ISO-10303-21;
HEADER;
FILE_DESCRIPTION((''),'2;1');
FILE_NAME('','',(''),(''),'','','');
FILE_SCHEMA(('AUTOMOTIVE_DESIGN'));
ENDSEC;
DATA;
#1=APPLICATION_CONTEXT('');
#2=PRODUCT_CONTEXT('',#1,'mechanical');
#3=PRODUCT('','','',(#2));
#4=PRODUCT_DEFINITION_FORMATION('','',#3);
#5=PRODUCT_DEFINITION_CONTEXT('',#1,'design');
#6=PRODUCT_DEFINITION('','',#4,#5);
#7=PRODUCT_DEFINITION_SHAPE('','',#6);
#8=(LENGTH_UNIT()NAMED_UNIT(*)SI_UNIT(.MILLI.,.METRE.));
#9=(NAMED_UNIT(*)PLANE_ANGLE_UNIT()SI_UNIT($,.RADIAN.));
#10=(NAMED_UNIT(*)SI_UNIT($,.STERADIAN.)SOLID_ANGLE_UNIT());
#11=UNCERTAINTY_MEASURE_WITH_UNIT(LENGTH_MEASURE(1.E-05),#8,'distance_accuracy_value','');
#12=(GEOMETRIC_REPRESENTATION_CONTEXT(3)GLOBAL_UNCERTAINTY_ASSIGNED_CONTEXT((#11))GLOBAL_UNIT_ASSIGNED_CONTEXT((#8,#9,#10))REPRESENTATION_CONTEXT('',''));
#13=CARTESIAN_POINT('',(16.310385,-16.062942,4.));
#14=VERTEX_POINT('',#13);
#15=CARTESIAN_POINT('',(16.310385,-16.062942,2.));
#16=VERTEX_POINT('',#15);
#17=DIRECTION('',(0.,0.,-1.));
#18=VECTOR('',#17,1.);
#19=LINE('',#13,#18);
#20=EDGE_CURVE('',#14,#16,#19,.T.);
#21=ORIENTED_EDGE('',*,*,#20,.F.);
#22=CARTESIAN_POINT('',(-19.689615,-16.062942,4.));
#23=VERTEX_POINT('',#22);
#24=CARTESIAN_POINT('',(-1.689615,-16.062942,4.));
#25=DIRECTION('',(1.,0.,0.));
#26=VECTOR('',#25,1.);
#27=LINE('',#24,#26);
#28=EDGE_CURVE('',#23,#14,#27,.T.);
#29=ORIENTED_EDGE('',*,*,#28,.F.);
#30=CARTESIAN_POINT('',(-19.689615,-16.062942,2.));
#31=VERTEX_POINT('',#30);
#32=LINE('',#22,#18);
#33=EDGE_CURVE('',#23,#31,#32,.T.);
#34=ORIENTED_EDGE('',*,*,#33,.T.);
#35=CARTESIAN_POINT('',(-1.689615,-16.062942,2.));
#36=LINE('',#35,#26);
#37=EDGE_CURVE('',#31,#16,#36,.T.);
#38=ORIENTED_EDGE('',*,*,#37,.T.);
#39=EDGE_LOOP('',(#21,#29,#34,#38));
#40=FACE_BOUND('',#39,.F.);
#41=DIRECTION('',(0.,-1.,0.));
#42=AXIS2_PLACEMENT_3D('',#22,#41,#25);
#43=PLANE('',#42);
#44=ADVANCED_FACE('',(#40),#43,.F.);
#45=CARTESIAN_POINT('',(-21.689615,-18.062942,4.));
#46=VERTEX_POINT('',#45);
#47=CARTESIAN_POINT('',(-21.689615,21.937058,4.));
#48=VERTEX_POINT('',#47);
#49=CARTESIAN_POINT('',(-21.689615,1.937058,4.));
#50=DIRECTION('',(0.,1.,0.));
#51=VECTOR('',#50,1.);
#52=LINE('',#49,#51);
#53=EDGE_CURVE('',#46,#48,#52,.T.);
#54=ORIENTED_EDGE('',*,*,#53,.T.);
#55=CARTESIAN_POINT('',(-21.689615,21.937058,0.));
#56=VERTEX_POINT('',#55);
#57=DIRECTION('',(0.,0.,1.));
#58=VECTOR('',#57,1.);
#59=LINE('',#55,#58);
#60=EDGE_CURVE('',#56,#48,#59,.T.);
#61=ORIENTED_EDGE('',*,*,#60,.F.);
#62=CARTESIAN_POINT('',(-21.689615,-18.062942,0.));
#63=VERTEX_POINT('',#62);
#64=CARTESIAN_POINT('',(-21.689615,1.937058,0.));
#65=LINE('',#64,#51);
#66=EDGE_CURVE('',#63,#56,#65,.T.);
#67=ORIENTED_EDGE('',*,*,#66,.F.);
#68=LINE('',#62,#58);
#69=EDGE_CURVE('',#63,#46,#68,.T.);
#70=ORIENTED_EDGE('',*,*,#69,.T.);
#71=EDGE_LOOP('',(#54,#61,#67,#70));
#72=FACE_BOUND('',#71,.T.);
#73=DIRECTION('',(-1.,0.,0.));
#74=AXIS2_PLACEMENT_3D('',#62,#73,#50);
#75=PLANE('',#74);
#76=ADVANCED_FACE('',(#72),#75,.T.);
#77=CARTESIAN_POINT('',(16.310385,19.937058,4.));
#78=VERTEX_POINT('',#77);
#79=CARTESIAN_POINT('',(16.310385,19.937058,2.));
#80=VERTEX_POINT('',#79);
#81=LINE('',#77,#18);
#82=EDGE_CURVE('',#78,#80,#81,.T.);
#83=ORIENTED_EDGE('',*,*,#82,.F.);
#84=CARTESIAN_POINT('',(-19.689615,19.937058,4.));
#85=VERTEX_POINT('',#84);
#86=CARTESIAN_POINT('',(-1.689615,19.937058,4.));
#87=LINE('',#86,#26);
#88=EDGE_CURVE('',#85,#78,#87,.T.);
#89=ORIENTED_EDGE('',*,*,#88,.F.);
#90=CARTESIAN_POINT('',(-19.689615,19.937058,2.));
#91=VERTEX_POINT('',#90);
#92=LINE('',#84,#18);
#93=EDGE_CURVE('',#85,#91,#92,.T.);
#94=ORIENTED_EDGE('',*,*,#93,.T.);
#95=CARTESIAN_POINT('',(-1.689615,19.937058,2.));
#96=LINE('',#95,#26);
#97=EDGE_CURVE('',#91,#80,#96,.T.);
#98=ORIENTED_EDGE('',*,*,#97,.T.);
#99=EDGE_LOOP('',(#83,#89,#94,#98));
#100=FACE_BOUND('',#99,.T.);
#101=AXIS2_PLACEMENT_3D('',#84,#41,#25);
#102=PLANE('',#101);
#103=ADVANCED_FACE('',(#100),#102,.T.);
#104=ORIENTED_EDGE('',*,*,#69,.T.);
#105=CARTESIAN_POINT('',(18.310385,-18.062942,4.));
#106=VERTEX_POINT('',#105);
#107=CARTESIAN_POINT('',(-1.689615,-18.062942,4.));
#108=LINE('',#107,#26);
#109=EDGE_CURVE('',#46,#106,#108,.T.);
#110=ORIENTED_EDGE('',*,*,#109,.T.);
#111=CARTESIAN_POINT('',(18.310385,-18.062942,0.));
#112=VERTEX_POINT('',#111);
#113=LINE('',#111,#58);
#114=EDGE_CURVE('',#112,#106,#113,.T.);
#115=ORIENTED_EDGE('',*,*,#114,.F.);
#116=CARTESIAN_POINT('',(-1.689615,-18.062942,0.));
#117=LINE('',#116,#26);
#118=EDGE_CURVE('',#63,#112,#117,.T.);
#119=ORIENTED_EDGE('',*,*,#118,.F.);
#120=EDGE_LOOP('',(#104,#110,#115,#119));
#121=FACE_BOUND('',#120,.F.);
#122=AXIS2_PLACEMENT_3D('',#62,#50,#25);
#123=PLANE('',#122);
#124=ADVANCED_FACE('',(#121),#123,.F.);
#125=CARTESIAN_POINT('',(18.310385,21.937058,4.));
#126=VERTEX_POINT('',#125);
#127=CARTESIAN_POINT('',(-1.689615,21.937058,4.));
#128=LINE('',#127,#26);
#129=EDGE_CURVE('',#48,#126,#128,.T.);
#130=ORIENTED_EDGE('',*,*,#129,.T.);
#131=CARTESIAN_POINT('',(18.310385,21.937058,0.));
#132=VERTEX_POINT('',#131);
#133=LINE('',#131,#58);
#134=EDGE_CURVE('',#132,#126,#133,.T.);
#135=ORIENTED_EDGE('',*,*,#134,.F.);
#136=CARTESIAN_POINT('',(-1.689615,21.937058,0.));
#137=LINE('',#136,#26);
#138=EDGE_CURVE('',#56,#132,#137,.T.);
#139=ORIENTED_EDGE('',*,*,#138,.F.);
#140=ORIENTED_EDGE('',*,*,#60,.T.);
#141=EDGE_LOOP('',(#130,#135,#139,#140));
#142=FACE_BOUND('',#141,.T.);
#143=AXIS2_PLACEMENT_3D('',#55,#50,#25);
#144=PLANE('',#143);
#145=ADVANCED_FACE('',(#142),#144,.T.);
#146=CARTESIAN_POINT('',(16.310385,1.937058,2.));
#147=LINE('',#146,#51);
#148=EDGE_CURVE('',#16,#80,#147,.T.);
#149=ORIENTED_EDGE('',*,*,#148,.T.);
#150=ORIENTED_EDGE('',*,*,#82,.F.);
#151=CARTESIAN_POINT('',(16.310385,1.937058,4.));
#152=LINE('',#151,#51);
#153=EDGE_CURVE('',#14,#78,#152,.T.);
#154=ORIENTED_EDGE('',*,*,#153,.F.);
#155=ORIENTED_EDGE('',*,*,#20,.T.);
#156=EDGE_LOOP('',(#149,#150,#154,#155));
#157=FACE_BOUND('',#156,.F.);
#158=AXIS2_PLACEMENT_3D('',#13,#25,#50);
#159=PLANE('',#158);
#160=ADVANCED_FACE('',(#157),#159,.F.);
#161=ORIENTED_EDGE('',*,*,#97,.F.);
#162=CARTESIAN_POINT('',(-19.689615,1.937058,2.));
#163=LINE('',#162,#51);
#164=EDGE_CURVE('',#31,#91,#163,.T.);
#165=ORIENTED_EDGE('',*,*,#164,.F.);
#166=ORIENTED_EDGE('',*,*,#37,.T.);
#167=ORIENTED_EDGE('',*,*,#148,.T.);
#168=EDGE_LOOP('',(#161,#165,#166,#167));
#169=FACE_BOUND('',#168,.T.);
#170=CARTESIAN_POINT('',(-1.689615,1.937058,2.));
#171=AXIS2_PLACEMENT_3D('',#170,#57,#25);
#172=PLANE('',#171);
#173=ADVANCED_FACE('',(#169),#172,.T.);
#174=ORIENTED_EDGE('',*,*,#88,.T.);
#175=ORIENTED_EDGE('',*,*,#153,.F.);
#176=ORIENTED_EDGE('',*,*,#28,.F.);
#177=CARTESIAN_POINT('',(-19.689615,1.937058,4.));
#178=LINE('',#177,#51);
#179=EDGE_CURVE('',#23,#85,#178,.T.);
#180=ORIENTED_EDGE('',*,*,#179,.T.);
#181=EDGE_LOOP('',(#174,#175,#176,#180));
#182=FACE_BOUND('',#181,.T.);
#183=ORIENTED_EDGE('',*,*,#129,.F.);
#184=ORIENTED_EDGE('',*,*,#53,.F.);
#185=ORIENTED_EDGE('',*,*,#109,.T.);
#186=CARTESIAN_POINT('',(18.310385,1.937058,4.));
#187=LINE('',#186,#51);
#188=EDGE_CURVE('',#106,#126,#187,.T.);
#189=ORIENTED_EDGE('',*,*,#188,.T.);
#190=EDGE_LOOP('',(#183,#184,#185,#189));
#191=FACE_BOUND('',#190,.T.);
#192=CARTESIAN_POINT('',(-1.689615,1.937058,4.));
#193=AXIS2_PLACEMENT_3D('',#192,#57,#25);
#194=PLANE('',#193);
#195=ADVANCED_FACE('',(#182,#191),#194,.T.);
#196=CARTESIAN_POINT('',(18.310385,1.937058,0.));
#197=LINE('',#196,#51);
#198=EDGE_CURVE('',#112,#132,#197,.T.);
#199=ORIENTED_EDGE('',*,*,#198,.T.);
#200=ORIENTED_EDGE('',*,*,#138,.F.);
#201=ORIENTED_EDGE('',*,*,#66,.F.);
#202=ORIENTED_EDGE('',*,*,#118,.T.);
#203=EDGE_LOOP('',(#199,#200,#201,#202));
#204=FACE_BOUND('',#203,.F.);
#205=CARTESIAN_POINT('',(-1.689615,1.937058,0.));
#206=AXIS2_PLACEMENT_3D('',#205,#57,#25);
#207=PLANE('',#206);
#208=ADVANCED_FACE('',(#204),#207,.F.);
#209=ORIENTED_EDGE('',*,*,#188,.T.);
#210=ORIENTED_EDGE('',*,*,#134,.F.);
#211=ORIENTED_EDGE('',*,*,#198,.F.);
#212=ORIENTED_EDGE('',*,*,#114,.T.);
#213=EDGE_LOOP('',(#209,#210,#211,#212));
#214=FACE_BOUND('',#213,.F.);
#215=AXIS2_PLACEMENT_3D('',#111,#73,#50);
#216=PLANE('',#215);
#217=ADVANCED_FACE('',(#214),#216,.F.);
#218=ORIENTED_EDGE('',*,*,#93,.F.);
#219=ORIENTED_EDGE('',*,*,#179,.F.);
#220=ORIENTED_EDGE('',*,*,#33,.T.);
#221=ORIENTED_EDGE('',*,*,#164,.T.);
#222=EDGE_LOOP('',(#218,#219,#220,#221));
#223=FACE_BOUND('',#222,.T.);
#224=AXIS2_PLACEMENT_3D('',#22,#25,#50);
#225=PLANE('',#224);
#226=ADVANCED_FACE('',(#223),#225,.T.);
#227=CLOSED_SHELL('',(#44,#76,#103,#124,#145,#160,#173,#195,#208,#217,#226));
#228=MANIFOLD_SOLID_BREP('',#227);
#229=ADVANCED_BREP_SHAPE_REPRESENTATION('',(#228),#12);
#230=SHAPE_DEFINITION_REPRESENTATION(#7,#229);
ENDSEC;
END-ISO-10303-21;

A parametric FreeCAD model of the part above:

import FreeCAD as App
import Part
import Sketcher
Q = App.Units.Quantity


def add_polygon(sketch, points):
    """Adds a closed chain of lines whose ends are joined by coincident constraints."""
    first, n = sketch.GeometryCount, len(points)
    for a, b in zip(points, points[1:] + points[:1]):
        sketch.addGeometry(Part.LineSegment(App.Vector(*a, 0), App.Vector(*b, 0)), False)
    for i in range(n):
        sketch.addConstraint(Sketcher.Constraint("Coincident", first + i, 2, first + (i + 1) % n, 1))

doc = App.newDocument("Part")
body = doc.addObject("PartDesign::Body", "Body")

sketch1 = body.newObject("Sketcher::SketchObject", "Sketch")
sketch1.AttachmentSupport = (doc.getObject("XY_Plane"), [""])
sketch1.MapMode = "FlatFace"
add_polygon(sketch1, [(-22, 22), (-22, -18), (18, -18), (18, 22)])
sketch1.addConstraint(Sketcher.Constraint("Vertical", 0))
sketch1.addConstraint(Sketcher.Constraint("Horizontal", 1))
sketch1.addConstraint(Sketcher.Constraint("Vertical", 2))
sketch1.addConstraint(Sketcher.Constraint("Horizontal", 3))
sketch1.addConstraint(Sketcher.Constraint("Equal", 3, 0))
sketch1.addConstraint(Sketcher.Constraint("DistanceX", 1, 1, 1, 2, Q("40 mm")))
sketch1.addConstraint(Sketcher.Constraint("DistanceY", 0, 2, -1, 1, Q("18.062942 mm")))
sketch1.addConstraint(Sketcher.Constraint("DistanceX", 0, 2, -1, 1, Q("21.689615 mm")))
pad1 = body.newObject("PartDesign::Pad", "Pad")
pad1.Profile = sketch1
pad1.Length = 4

sketch2 = body.newObject("Sketcher::SketchObject", "Sketch001")
sketch2.AttachmentSupport = (doc.getObject("XY_Plane"), [""])
sketch2.MapMode = "FlatFace"
sketch2.AttachmentOffset = App.Placement(App.Vector(0, 0, 4), App.Rotation())
add_polygon(sketch2, [(-20, 20), (-20, -16), (16, -16), (16, 20)])
sketch2.addConstraint(Sketcher.Constraint("Vertical", 0))
sketch2.addConstraint(Sketcher.Constraint("Horizontal", 1))
sketch2.addConstraint(Sketcher.Constraint("Vertical", 2))
sketch2.addConstraint(Sketcher.Constraint("Horizontal", 3))
sketch2.addConstraint(Sketcher.Constraint("Equal", 3, 0))
sketch2.addConstraint(Sketcher.Constraint("DistanceX", 1, 1, 1, 2, Q("36.000001 mm")))
sketch2.addConstraint(Sketcher.Constraint("DistanceY", -1, 1, 2, 2, Q("19.937058 mm")))
sketch2.addConstraint(Sketcher.Constraint("DistanceX", 0, 2, -1, 1, Q("19.689615 mm")))
pad2 = body.newObject("PartDesign::Pad", "Pad001")
pad2.Profile = sketch2
pad2.Length = 2
pad2.Reversed = True

sketch3 = body.newObject("Sketcher::SketchObject", "Sketch002")
sketch3.AttachmentSupport = (doc.getObject("XY_Plane"), [""])
sketch3.MapMode = "FlatFace"
sketch3.AttachmentOffset = App.Placement(App.Vector(0, 0, 4), App.Rotation())
add_polygon(sketch3, [(-20, 20), (-20, -16), (16, -16), (16, 20)])
sketch3.addConstraint(Sketcher.Constraint("Vertical", 0))
sketch3.addConstraint(Sketcher.Constraint("Horizontal", 1))
sketch3.addConstraint(Sketcher.Constraint("Vertical", 2))
sketch3.addConstraint(Sketcher.Constraint("Horizontal", 3))
sketch3.addConstraint(Sketcher.Constraint("Equal", 3, 0))
sketch3.addConstraint(Sketcher.Constraint("DistanceX", 1, 1, 1, 2, Q("36 mm")))
sketch3.addConstraint(Sketcher.Constraint("DistanceY", 0, 2, -1, 1, Q("16.062942 mm")))
sketch3.addConstraint(Sketcher.Constraint("DistanceX", 0, 2, -1, 1, Q("19.689615 mm")))
pocket1 = body.newObject("PartDesign::Pocket", "Pocket")
pocket1.Profile = sketch3
pocket1.Length = 2

doc.recompute()
